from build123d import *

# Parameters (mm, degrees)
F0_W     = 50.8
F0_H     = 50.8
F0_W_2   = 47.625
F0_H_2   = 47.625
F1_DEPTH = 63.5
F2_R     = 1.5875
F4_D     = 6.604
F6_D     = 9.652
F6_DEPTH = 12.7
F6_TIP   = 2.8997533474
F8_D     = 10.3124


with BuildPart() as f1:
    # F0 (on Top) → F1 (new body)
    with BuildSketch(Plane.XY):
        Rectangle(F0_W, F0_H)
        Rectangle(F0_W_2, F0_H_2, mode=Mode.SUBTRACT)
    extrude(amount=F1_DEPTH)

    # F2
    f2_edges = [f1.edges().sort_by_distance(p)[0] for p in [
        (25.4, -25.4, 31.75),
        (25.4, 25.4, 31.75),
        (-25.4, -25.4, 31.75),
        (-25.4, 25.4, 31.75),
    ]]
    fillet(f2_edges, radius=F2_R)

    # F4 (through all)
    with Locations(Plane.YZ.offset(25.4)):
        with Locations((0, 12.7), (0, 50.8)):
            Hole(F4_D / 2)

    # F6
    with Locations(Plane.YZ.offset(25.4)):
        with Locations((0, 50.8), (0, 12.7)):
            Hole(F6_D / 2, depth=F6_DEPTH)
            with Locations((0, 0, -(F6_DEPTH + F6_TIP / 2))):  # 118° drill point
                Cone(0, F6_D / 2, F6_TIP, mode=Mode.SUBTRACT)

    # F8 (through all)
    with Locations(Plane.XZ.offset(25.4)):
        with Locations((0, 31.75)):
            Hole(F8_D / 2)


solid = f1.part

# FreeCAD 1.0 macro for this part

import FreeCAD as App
import Part
import Sketcher

V = App.Vector
Q = App.Units.Quantity


def edges_at(feature, points):
    """Names of the edges that pass closest to the given points."""
    edges = feature.Shape.Edges
    near = lambda p: min(range(len(edges)), key=lambda i: edges[i].distToShape(Part.Vertex(*p))[0])
    return sorted({f"Edge{near(p) + 1}" for p in points})


def add_polygon(sketch, points):
    """Adds a closed chain of lines whose ends are joined by coincident constraints."""
    first, n = sketch.GeometryCount, len(points)
    for a, b in zip(points, points[1:] + points[:1]):
        sketch.addGeometry(Part.LineSegment(App.Vector(*a, 0), App.Vector(*b, 0)), False)
    for i in range(n):
        sketch.addConstraint(Sketcher.Constraint("Coincident", first + i, 2, first + (i + 1) % n, 1))

doc = App.newDocument("Part")
body = doc.addObject("PartDesign::Body", "Body")

sketch1 = doc.addObject("Sketcher::SketchObject", "Sketch")
body.addObject(sketch1)
sketch1.AttachmentSupport = (doc.XY_Plane, [""])
sketch1.MapMode = "FlatFace"
add_polygon(sketch1, [(-25, 25), (-25, -25), (25, -25), (25, 25)])
add_polygon(sketch1, [(24, -24), (-24, -24), (-24, 24), (24, 24)])
sketch1.addConstraint(Sketcher.Constraint("Vertical", 0))
sketch1.addConstraint(Sketcher.Constraint("Horizontal", 1))
sketch1.addConstraint(Sketcher.Constraint("Vertical", 2))
sketch1.addConstraint(Sketcher.Constraint("Horizontal", 3))
sketch1.addConstraint(Sketcher.Constraint("Horizontal", 4))
sketch1.addConstraint(Sketcher.Constraint("Vertical", 5))
sketch1.addConstraint(Sketcher.Constraint("Horizontal", 6))
sketch1.addConstraint(Sketcher.Constraint("Vertical", 7))
sketch1.addConstraint(Sketcher.Constraint("Symmetric", 0, 2, 2, 2, -1, 1))
sketch1.addConstraint(Sketcher.Constraint("Symmetric", 4, 2, 6, 2, -1, 1))
sketch1.addConstraint(Sketcher.Constraint("Equal", 3, 0))
sketch1.addConstraint(Sketcher.Constraint("Equal", 6, 5))
sketch1.addConstraint(Sketcher.Constraint("DistanceX", 1, 1, 1, 2, Q("2 in")))
sketch1.addConstraint(Sketcher.Constraint("DistanceX", 4, 2, 4, 1, Q("1.875 in")))
pad1 = doc.addObject("PartDesign::Pad", "Pad")
body.addObject(pad1)
pad1.Profile = sketch1
pad1.Length = Q("2.5 in")
doc.recompute()

fillet = doc.addObject("PartDesign::Fillet", "Fillet")
body.addObject(fillet)
fillet.Base = (pad1, edges_at(pad1, [
    (25.4, -25.4, 31.75),
    (25.4, 25.4, 31.75),
    (-25.4, -25.4, 31.75),
    (-25.4, 25.4, 31.75),
]))
fillet.Radius = Q("0.0625 in")

sketch2 = doc.addObject("Sketcher::SketchObject", "Sketch001")
body.addObject(sketch2)
sketch2.AttachmentSupport = (doc.YZ_Plane, [""])
sketch2.MapMode = "FlatFace"
sketch2.AttachmentOffset = App.Placement(V(0, 0, 1 * 25.4), App.Rotation())
sketch2.addGeometry(Part.Circle(V(0, 12.7, 0), V(0, 0, 1), 3.3), False)
sketch2.addGeometry(Part.Circle(V(0, 50.8, 0), V(0, 0, 1), 3.3), False)
sketch2.addConstraint(Sketcher.Constraint("Equal", 0, 1))
sketch2.addConstraint(Sketcher.Constraint("PointOnObject", 0, 3, -2))
sketch2.addConstraint(Sketcher.Constraint("PointOnObject", 1, 3, -2))
sketch2.addConstraint(Sketcher.Constraint("Diameter", 0, Q("0.26 in")))
sketch2.addConstraint(Sketcher.Constraint("DistanceY", -1, 1, 1, 3, Q("2 in")))
sketch2.addConstraint(Sketcher.Constraint("DistanceY", -1, 1, 0, 3, Q("0.5 in")))
doc.recompute()
hole = doc.addObject("PartDesign::Hole", "Hole")
body.addObject(hole)
hole.Profile = sketch2
hole.ThreadType = "None"
hole.Diameter = Q("0.26 in")
hole.DepthType = "ThroughAll"

sketch3 = doc.addObject("Sketcher::SketchObject", "Sketch002")
body.addObject(sketch3)
sketch3.AttachmentSupport = (doc.YZ_Plane, [""])
sketch3.MapMode = "FlatFace"
sketch3.AttachmentOffset = App.Placement(V(0, 0, 1 * 25.4), App.Rotation())
sketch3.addGeometry(Part.Circle(V(0, 50.8, 0), V(0, 0, 1), 4.8), False)
sketch3.addGeometry(Part.Circle(V(0, 12.7, 0), V(0, 0, 1), 4.8), False)
sketch3.addConstraint(Sketcher.Constraint("Equal", 0, 1))
sketch3.addConstraint(Sketcher.Constraint("PointOnObject", 0, 3, -2))
sketch3.addConstraint(Sketcher.Constraint("PointOnObject", 1, 3, -2))
sketch3.addConstraint(Sketcher.Constraint("Diameter", 0, Q("0.38 in")))
sketch3.addConstraint(Sketcher.Constraint("DistanceY", -1, 1, 0, 3, Q("2 in")))
sketch3.addConstraint(Sketcher.Constraint("DistanceY", -1, 1, 1, 3, Q("0.5 in")))
doc.recompute()
hole2 = doc.addObject("PartDesign::Hole", "Hole001")
body.addObject(hole2)
hole2.Profile = sketch3
hole2.ThreadType = "None"
hole2.Diameter = Q("0.38 in")
hole2.DepthType = "Dimension"
hole2.Depth = Q("0.5 in")
hole2.DrillPoint = "Angled"
hole2.DrillPointAngle = 118

sketch4 = doc.addObject("Sketcher::SketchObject", "Sketch003")
body.addObject(sketch4)
sketch4.AttachmentSupport = (doc.XZ_Plane, [""])
sketch4.MapMode = "FlatFace"
sketch4.AttachmentOffset = App.Placement(V(0, 0, 1 * 25.4), App.Rotation())
sketch4.addGeometry(Part.Circle(V(0, 32, 0), V(0, 0, 1), 5), False)
sketch4.addConstraint(Sketcher.Constraint("PointOnObject", 0, 3, -2))
sketch4.addConstraint(Sketcher.Constraint("Diameter", 0, Q("0.406 in")))
sketch4.addConstraint(Sketcher.Constraint("DistanceY", -1, 1, 0, 3, Q("1.25 in")))
doc.recompute()
hole3 = doc.addObject("PartDesign::Hole", "Hole002")
body.addObject(hole3)
hole3.Profile = sketch4
hole3.ThreadType = "None"
hole3.Diameter = Q("0.406 in")
hole3.DepthType = "ThroughAll"

doc.recompute()
